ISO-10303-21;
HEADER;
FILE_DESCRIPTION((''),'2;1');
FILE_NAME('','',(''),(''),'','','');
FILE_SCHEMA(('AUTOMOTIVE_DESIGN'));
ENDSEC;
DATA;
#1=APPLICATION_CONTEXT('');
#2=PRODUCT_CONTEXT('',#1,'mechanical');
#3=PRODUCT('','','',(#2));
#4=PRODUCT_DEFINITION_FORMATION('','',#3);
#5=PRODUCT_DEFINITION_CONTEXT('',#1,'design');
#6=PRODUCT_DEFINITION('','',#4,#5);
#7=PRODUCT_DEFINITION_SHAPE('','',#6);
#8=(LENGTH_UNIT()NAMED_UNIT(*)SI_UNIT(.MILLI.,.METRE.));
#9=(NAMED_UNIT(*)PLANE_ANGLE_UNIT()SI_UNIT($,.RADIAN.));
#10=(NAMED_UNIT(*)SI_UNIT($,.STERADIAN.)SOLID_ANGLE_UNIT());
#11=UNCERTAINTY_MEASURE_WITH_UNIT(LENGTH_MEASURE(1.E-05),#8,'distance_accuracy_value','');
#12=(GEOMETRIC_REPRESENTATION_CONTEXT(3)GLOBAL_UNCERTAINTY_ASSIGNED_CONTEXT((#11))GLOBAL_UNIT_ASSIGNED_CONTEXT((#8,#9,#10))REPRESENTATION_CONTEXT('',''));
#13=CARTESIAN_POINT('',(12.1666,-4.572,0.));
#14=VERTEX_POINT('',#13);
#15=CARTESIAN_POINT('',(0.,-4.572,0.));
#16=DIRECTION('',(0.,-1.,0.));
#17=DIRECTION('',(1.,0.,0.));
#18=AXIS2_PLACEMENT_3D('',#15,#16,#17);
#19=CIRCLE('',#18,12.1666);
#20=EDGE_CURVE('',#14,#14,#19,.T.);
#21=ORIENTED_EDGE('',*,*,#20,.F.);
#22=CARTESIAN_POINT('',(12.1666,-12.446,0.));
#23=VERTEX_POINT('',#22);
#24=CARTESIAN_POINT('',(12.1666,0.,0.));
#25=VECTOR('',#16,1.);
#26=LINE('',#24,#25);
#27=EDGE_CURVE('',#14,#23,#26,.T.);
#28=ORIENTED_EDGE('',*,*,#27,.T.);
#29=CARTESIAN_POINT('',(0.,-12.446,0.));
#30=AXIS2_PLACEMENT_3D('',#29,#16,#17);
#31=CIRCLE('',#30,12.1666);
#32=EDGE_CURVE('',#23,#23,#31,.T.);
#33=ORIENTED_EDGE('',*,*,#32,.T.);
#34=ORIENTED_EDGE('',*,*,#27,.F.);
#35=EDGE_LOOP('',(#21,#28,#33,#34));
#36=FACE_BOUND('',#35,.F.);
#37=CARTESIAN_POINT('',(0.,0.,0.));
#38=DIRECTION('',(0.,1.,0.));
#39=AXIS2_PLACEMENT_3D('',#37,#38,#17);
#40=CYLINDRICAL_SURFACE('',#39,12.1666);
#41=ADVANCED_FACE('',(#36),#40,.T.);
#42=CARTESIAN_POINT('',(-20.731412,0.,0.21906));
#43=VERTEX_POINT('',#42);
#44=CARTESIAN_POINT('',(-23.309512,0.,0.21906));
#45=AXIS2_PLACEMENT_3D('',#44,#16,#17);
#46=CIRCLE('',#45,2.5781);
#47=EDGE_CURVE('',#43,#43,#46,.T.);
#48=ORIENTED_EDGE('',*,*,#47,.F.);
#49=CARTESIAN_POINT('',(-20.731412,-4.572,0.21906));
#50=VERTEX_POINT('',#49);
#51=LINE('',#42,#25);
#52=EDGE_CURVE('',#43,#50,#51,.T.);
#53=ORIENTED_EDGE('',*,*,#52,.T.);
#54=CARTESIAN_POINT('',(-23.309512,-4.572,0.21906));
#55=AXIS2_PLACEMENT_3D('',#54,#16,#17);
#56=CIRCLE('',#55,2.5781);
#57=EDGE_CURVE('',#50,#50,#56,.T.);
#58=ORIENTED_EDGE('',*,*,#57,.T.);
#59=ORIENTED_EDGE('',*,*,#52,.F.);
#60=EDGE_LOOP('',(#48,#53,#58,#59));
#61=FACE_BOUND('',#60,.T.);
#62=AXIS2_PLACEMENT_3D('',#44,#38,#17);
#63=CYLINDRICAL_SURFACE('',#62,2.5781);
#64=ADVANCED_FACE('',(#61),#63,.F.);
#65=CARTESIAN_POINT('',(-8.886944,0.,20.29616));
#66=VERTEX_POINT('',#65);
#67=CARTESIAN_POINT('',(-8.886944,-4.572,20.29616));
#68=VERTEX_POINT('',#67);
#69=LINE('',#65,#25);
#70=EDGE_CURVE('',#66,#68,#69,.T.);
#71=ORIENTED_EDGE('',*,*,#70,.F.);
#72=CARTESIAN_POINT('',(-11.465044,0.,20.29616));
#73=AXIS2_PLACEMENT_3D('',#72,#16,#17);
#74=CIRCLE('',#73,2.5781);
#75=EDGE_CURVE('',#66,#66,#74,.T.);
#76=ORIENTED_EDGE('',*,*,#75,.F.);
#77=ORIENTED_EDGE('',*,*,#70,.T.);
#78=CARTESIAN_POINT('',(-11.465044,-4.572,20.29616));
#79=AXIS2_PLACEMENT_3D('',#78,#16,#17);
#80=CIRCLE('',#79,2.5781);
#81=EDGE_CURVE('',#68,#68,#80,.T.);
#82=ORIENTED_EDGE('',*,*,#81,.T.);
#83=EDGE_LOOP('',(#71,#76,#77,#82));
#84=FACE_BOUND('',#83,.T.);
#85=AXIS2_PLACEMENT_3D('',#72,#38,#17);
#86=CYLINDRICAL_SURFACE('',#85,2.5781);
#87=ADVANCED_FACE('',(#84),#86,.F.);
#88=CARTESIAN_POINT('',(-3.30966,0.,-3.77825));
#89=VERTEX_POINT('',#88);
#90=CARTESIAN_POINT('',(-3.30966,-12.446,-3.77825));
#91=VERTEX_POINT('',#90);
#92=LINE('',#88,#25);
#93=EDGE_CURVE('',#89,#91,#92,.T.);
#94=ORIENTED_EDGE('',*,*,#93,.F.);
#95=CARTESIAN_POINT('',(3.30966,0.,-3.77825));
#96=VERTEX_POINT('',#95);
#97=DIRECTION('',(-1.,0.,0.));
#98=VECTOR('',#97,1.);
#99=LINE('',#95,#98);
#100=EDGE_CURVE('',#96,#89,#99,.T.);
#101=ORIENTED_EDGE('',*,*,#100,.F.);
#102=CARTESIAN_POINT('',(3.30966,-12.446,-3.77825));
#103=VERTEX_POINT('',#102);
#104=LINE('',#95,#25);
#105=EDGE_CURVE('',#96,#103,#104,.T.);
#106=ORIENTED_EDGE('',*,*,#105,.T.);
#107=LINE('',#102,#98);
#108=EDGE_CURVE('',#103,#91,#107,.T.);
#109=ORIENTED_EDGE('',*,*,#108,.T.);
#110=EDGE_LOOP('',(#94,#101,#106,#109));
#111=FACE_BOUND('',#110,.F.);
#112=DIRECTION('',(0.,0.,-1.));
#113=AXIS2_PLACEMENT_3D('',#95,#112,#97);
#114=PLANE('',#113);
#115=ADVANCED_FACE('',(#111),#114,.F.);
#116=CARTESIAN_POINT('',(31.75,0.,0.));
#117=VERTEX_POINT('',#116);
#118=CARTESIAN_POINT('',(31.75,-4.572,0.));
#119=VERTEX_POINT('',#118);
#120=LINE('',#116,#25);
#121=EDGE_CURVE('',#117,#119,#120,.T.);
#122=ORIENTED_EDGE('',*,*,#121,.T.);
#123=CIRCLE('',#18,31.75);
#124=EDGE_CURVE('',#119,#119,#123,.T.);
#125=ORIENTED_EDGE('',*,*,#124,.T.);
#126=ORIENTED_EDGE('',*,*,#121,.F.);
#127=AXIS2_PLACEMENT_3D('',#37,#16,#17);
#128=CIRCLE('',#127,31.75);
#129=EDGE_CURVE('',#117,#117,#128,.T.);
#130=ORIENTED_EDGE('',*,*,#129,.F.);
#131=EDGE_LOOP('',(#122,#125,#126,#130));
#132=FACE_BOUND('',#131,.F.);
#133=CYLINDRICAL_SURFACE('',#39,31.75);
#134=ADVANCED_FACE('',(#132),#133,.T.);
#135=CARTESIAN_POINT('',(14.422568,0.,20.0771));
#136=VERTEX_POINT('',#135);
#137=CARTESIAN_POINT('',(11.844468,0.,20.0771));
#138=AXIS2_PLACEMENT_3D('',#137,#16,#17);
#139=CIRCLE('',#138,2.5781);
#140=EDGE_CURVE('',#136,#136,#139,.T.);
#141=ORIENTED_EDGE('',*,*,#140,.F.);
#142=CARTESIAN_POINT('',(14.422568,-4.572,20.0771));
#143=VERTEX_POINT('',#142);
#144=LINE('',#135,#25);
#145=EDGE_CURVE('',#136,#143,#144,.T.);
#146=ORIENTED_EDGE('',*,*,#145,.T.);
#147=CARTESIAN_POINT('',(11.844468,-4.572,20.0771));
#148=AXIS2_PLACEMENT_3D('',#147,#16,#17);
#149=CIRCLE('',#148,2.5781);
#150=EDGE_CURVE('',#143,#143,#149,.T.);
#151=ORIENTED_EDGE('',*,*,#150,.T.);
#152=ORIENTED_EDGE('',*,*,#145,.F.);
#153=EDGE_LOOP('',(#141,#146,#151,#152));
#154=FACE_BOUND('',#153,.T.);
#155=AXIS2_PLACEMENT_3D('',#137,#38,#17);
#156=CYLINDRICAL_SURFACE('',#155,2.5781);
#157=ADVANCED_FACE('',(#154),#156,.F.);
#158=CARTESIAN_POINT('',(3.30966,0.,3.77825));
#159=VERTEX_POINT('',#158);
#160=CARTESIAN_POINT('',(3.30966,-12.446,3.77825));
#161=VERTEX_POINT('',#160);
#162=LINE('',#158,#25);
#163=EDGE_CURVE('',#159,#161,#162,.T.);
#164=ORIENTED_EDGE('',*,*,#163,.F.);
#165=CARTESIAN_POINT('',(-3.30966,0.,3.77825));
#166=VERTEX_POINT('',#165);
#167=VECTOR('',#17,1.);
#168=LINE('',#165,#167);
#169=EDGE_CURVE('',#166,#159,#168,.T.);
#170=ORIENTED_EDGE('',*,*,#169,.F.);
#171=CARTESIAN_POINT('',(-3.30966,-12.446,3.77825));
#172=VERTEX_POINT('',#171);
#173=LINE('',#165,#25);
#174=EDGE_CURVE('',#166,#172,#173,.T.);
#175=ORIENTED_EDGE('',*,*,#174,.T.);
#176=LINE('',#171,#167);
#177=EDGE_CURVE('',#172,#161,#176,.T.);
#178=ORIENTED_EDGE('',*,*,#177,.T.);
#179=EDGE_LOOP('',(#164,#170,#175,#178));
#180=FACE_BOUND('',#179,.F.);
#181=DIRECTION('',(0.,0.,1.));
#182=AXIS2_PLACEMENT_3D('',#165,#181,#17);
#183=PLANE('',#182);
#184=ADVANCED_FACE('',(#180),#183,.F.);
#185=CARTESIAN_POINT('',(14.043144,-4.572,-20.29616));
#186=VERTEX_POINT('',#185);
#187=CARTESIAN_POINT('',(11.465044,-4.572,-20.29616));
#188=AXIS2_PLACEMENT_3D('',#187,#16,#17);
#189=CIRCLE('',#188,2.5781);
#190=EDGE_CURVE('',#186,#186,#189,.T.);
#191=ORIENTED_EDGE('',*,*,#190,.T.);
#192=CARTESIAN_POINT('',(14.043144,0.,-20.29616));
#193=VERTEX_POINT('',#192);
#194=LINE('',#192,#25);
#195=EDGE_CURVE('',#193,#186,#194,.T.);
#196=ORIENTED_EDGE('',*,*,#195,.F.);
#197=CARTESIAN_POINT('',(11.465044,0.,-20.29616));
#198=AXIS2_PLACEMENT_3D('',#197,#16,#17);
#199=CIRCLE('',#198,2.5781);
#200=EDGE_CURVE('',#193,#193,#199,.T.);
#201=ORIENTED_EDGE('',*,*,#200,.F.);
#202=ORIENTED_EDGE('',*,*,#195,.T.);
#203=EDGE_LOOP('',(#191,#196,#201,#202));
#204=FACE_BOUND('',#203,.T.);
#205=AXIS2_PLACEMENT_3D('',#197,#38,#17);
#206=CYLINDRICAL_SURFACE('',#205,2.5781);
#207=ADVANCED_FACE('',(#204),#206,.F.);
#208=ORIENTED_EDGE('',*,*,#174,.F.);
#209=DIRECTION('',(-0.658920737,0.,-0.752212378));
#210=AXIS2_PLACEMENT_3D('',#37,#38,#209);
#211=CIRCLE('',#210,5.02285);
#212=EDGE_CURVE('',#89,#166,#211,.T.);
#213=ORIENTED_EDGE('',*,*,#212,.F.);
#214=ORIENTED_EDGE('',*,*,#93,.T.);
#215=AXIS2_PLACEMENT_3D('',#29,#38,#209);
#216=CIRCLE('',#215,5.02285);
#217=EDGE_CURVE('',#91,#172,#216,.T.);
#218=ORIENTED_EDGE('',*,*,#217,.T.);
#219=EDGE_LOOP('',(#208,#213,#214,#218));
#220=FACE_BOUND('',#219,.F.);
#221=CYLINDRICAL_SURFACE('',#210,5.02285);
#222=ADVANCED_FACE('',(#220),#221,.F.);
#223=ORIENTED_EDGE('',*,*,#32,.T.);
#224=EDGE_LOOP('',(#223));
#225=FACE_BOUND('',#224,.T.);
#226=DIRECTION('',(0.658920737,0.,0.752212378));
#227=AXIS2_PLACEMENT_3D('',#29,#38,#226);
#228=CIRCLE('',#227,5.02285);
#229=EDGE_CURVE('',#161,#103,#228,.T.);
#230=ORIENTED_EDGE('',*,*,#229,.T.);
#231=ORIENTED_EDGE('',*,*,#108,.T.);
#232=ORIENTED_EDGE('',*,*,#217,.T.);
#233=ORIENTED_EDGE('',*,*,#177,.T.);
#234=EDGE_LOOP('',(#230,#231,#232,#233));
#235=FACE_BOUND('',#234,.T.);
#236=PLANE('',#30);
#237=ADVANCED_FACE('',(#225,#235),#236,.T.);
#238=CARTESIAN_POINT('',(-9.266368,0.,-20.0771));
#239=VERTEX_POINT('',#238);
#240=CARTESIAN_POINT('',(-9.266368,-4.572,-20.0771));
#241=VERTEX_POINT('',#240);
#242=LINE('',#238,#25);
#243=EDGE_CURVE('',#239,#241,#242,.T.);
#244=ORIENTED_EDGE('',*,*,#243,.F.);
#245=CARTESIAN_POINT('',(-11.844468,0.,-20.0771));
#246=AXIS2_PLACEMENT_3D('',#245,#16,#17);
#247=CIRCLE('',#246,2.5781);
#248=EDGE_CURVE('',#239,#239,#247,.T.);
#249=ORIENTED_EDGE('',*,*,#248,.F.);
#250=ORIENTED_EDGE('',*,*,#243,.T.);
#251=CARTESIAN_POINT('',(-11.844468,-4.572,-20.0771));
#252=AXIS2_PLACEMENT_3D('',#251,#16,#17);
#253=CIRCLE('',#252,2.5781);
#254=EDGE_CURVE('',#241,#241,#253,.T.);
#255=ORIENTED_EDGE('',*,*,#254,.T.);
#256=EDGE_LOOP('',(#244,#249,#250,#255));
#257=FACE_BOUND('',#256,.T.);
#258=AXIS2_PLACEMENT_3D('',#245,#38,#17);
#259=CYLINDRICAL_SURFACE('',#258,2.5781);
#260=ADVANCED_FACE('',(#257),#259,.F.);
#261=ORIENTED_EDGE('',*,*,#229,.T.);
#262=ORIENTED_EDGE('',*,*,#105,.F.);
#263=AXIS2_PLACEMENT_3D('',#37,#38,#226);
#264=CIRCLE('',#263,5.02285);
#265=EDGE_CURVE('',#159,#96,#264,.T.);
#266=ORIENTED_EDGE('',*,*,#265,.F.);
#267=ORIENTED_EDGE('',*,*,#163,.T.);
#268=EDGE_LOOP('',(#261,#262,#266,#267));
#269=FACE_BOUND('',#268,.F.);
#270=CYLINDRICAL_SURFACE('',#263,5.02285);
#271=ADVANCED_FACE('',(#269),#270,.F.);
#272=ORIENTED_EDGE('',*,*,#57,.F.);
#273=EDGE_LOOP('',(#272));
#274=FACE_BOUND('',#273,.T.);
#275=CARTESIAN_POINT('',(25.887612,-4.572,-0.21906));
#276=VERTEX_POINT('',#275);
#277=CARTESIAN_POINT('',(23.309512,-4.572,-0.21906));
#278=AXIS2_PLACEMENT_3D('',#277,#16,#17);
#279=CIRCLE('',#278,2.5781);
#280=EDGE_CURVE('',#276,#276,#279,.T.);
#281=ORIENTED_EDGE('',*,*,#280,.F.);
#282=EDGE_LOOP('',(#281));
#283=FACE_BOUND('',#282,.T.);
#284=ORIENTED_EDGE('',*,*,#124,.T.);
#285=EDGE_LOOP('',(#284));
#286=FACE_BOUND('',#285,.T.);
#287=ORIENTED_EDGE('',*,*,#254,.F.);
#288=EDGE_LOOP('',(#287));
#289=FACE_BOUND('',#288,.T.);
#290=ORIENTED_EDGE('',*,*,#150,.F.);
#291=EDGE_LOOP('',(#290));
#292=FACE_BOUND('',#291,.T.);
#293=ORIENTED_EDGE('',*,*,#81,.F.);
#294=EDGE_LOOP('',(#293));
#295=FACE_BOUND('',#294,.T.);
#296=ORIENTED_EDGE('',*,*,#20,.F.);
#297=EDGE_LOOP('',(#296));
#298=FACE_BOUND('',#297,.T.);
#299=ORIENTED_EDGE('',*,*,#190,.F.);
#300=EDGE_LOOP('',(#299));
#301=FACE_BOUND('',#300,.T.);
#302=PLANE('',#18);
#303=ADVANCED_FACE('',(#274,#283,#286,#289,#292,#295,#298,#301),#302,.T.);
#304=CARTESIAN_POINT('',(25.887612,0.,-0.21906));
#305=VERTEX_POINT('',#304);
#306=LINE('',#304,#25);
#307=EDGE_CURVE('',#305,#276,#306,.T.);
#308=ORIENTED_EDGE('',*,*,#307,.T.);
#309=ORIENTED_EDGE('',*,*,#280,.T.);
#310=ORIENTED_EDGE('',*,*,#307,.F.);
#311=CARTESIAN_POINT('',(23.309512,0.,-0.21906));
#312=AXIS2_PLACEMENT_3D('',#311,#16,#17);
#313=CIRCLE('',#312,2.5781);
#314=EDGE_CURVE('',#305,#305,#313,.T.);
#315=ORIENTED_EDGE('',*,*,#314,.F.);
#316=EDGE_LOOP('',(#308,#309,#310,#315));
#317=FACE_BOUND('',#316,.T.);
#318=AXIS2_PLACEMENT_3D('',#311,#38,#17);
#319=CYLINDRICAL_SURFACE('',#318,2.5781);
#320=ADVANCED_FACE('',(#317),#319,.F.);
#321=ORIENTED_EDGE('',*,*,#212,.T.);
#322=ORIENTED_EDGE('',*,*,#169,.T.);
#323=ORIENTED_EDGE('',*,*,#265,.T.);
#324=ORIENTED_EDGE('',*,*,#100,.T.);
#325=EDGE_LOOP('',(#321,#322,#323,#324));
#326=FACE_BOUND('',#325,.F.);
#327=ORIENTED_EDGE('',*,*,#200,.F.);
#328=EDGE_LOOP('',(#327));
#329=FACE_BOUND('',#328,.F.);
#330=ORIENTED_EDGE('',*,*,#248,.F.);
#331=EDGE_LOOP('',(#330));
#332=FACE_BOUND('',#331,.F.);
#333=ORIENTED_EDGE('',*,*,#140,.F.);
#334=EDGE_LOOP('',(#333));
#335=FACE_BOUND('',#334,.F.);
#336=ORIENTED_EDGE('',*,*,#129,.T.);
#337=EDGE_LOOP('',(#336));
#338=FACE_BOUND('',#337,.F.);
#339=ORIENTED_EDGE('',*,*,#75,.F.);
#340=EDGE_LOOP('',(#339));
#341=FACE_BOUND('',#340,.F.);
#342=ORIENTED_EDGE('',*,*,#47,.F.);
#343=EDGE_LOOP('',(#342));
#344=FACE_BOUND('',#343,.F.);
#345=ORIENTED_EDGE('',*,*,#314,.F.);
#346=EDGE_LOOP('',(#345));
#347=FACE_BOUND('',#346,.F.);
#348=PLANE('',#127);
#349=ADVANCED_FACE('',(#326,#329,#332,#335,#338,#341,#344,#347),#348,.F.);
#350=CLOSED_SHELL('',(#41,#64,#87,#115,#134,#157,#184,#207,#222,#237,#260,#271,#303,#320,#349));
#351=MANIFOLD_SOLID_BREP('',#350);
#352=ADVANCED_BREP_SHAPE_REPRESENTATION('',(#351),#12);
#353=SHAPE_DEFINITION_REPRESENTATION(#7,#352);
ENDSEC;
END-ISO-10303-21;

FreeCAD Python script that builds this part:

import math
import FreeCAD as App
import Part
import Sketcher

V = App.Vector
Q = App.Units.Quantity

doc = App.newDocument("Part")
body = doc.addObject("PartDesign::Body", "Body")

sketch1 = body.newObject("Sketcher::SketchObject", "Sketch")
sketch1.AttachmentSupport = (doc.getObject("XZ_Plane"), [""])
sketch1.MapMode = "FlatFace"
sketch1.addGeometry([
    Part.Circle(V(0, 0, 0), V(0, 0, 1), 12),
    Part.LineSegment(V(-3, 4, 0), V(3, 4, 0)),
    Part.ArcOfCircle(Part.Circle(V(0, 0, 0), V(0, 0, 1), 5), math.radians(-49), math.radians(49)),
    Part.LineSegment(V(3, -4, 0), V(-3, -4, 0)),
    Part.ArcOfCircle(Part.Circle(V(0, 0, 0), V(0, 0, 1), 5), math.radians(131), math.radians(229)),
], False)
sketch1.addConstraint([
    Sketcher.Constraint("Coincident", 1, 2, 2, 2),
    Sketcher.Constraint("Coincident", 2, 1, 3, 1),
    Sketcher.Constraint("Coincident", 3, 2, 4, 2),
    Sketcher.Constraint("Coincident", 4, 1, 1, 1),
    Sketcher.Constraint("Horizontal", 1),
    Sketcher.Constraint("Horizontal", 3),
    Sketcher.Constraint("Coincident", 0, 3, -1, 1),
    Sketcher.Constraint("Coincident", 2, 3, -1, 1),
    Sketcher.Constraint("Coincident", 4, 3, -1, 1),
    Sketcher.Constraint("Equal", 2, 4),
    Sketcher.Constraint("Vertical", 1, 2, 2, 1),
    Sketcher.Constraint("Diameter", 0, Q("0.958 in")),
    Sketcher.Constraint("Radius", 2, 5.02285),
    Sketcher.Constraint("DistanceY", 2, 1, 1, 2, Q("0.2975 in")),
])
pad1 = body.newObject("PartDesign::Pad", "Pad")
pad1.Profile = sketch1
pad1.Length = Q("0.49 in")

sketch2 = body.newObject("Sketcher::SketchObject", "Sketch001")
sketch2.AttachmentSupport = (doc.getObject("XZ_Plane"), [""])
sketch2.MapMode = "FlatFace"
sketch2.addGeometry([
    Part.Circle(V(0, 0, 0), V(0, 0, 1), 31.8),
    Part.Circle(V(-11.8, -20.1, 0), V(0, 0, 1), 2.6),
    Part.Circle(V(11.5, -20.3, 0), V(0, 0, 1), 2.6),
    Part.Circle(V(23.3, -0.2, 0), V(0, 0, 1), 2.6),
    Part.Circle(V(-23.3, 0.2, 0), V(0, 0, 1), 2.6),
    Part.Circle(V(0, 0, 0), V(0, 0, 1), 12.2),
    Part.Circle(V(-11.5, 20.3, 0), V(0, 0, 1), 2.6),
    Part.Circle(V(11.8, 20.1, 0), V(0, 0, 1), 2.6),
], False)
sketch2.addConstraint([
    Sketcher.Constraint("Coincident", 0, 3, -1, 1),
    Sketcher.Constraint("Coincident", 5, 3, -1, 1),
    Sketcher.Constraint("Equal", 1, 2),
    Sketcher.Constraint("Equal", 2, 3),
    Sketcher.Constraint("Equal", 3, 4),
    Sketcher.Constraint("Equal", 4, 6),
    Sketcher.Constraint("Equal", 6, 7),
    Sketcher.Constraint("Symmetric", 3, 3, 4, 3, -1, 1),
    Sketcher.Constraint("Symmetric", 2, 3, 6, 3, -1, 1),
    Sketcher.Constraint("Symmetric", 1, 3, 7, 3, -1, 1),
    Sketcher.Constraint("Diameter", 0, Q("2.5 in")),
    Sketcher.Constraint("Diameter", 1, Q("0.203 in")),
    Sketcher.Constraint("Diameter", 5, Q("0.958 in")),
    Sketcher.Constraint("DistanceY", 1, 3, -1, 1, 20.0771),
    Sketcher.Constraint("DistanceY", 2, 3, 3, 3, 20.0771),
    Sketcher.Constraint("DistanceX", 1, 3, -1, 1, 11.844468),
    Sketcher.Constraint("DistanceY", 2, 3, -1, 1, 20.29616),
    Sketcher.Constraint("DistanceX", 2, 3, 3, 3, 11.844468),
    Sketcher.Constraint("DistanceX", 1, 3, 3, 3, 35.15398),
])
pad2 = body.newObject("PartDesign::Pad", "Pad001")
pad2.Profile = sketch2
pad2.Length = Q("0.18 in")

doc.recompute()
